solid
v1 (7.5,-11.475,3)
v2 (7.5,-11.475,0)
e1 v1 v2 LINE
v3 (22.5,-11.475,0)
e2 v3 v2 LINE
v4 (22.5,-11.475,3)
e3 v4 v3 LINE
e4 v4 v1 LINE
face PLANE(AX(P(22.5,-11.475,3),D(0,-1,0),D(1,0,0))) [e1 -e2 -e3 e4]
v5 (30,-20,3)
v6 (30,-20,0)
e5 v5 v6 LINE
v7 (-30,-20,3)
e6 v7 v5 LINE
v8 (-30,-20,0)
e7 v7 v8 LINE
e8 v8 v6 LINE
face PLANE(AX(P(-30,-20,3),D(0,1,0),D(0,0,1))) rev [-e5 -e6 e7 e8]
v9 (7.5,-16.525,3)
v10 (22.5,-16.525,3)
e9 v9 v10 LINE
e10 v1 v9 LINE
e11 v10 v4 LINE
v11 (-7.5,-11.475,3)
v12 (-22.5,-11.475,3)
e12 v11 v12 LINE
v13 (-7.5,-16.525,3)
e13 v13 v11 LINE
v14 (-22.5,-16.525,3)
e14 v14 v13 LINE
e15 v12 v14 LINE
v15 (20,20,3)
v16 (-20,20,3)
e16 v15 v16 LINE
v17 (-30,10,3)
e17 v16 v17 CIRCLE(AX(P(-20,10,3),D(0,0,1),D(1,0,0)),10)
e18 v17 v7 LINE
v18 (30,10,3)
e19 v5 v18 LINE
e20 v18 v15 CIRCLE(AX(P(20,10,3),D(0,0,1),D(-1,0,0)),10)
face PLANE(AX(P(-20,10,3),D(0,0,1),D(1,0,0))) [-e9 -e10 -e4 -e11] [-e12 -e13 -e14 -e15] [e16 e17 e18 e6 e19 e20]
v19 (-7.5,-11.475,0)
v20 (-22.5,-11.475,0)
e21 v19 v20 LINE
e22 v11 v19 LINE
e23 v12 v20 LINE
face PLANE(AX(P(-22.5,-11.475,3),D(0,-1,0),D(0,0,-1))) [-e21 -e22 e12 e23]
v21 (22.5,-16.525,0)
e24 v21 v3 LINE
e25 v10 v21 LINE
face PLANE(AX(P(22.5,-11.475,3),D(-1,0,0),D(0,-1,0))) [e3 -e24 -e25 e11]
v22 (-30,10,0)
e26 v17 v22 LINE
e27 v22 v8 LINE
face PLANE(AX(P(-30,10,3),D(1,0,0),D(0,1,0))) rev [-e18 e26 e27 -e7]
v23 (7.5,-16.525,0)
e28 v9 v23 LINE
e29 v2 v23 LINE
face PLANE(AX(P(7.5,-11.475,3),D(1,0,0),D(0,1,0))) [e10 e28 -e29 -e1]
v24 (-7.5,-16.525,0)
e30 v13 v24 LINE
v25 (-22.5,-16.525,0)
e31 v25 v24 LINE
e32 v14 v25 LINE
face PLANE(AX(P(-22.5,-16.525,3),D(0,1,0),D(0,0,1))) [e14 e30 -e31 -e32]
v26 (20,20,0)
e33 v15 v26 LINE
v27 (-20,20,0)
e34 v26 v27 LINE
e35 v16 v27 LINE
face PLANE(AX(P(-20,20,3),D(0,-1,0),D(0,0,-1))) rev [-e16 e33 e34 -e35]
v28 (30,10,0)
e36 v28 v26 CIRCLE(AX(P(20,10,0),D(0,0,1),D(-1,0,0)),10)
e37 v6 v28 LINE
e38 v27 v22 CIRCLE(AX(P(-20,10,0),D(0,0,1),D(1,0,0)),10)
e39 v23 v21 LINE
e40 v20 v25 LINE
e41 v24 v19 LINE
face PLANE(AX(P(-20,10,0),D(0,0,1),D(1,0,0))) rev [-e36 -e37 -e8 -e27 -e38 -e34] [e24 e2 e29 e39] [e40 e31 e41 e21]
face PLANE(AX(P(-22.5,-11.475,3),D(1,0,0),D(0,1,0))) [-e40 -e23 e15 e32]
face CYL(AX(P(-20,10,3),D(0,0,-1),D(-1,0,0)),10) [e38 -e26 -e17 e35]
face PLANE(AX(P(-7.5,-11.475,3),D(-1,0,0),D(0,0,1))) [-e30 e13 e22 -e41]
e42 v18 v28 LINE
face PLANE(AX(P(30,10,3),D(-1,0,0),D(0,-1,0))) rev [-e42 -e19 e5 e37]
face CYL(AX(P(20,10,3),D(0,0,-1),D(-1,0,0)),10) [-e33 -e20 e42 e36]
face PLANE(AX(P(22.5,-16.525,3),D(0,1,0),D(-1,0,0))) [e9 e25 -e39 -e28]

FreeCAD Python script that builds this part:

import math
import FreeCAD as App
import Part
import Sketcher
from FreeCAD import Vector


def add_polygon(sketch, points):
    """Adds a closed chain of lines whose ends are joined by coincident constraints."""
    first, n = sketch.GeometryCount, len(points)
    for a, b in zip(points, points[1:] + points[:1]):
        sketch.addGeometry(Part.LineSegment(App.Vector(*a, 0), App.Vector(*b, 0)), False)
    for i in range(n):
        sketch.addConstraint(Sketcher.Constraint("Coincident", first + i, 2, first + (i + 1) % n, 1))

doc = App.newDocument("Part")
body = doc.addObject("PartDesign::Body", "Body")

sketch1 = doc.addObject("Sketcher::SketchObject", "Sketch")
body.addObject(sketch1)
sketch1.AttachmentSupport = (doc.XY_Plane, [""])
sketch1.MapMode = "FlatFace"
sketch1.addGeometry(Part.LineSegment(Vector(20, 20, 0), Vector(-20, 20, 0)), False)
sketch1.addGeometry(Part.ArcOfCircle(Part.Circle(Vector(-20, 10, 0), Vector(0, 0, 1), 10), math.radians(90), math.radians(180)), False)
sketch1.addGeometry(Part.LineSegment(Vector(-30, 10, 0), Vector(-30, -20, 0)), False)
sketch1.addGeometry(Part.LineSegment(Vector(-30, -20, 0), Vector(30, -20, 0)), False)
sketch1.addGeometry(Part.LineSegment(Vector(30, -20, 0), Vector(30, 10, 0)), False)
sketch1.addGeometry(Part.ArcOfCircle(Part.Circle(Vector(20, 10, 0), Vector(0, 0, 1), 10), math.radians(0), math.radians(90)), False)
add_polygon(sketch1, [(8, -17), (8, -11), (22, -11), (22, -17)])
add_polygon(sketch1, [(-22, -17), (-22, -11), (-8, -11), (-8, -17)])
sketch1.addConstraint([
    Sketcher.Constraint("Tangent", 0, 2, 1, 1),
    Sketcher.Constraint("Tangent", 1, 2, 2, 1),
    Sketcher.Constraint("Coincident", 2, 2, 3, 1),
    Sketcher.Constraint("Coincident", 3, 2, 4, 1),
    Sketcher.Constraint("Tangent", 4, 2, 5, 1),
    Sketcher.Constraint("Tangent", 5, 2, 0, 1),
    Sketcher.Constraint("Horizontal", 0),
    Sketcher.Constraint("Vertical", 2),
    Sketcher.Constraint("Horizontal", 3),
    Sketcher.Constraint("Vertical", 4),
    Sketcher.Constraint("Vertical", 6),
    Sketcher.Constraint("Horizontal", 7),
    Sketcher.Constraint("Vertical", 8),
    Sketcher.Constraint("Horizontal", 9),
    Sketcher.Constraint("Vertical", 10),
    Sketcher.Constraint("Horizontal", 11),
    Sketcher.Constraint("Vertical", 12),
    Sketcher.Constraint("Horizontal", 13),
    Sketcher.Constraint("Equal", 1, 5),
    Sketcher.Constraint("Symmetric", 7, 2, 10, 2, -2),
    Sketcher.Constraint("Symmetric", 9, 2, 12, 2, -2),
    Sketcher.Constraint("Radius", 1, 10.0),
    Sketcher.Constraint("DistanceX", 0, 2, 0, 1, 40.0),
    Sketcher.Constraint("DistanceX", 7, 1, 7, 2, 15.0),
    Sketcher.Constraint("DistanceY", 2, 2, 2, 1, 30.0),
    Sketcher.Constraint("DistanceX", 1, 3, -1, 1, 20.0),
    Sketcher.Constraint("DistanceY", -1, 1, 1, 3, 10.0),
    Sketcher.Constraint("DistanceX", 10, 2, 6, 2, 30.0),
    Sketcher.Constraint("DistanceY", 6, 1, 6, 2, 5.05),
    Sketcher.Constraint("DistanceY", 6, 2, -1, 1, 11.475),
])
pad1 = doc.addObject("PartDesign::Pad", "Pad")
body.addObject(pad1)
pad1.Profile = sketch1
pad1.Length = 3

doc.recompute()
